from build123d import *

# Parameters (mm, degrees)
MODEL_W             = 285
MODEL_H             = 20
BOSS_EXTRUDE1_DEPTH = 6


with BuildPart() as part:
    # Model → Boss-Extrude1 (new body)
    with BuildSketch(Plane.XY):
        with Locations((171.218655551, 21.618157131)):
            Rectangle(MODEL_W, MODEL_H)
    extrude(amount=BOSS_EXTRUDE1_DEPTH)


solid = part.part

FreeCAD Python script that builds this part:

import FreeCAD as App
import Part
import Sketcher

V = App.Vector
Q = App.Units.Quantity

doc = App.newDocument("Part")
params = doc.addObject("Spreadsheet::Sheet", "Params")
for row, (alias, value) in enumerate([
    ("sketch1_width", "285 mm"),
    ("sketch1_height", "20 mm"),
    ("pad1_length", "6 mm"),
], start=1):
    params.set(f"A{row}", alias)
    params.set(f"B{row}", "=" + value)
    params.setAlias(f"B{row}", alias)

body = doc.addObject("PartDesign::Body", "Body")

sketch1 = body.newObject("Sketcher::SketchObject", "Sketch")
sketch1.AttachmentSupport = (doc.getObject("XY_Plane"), [""])
sketch1.MapMode = "FlatFace"
sketch1.addGeometry([
    Part.LineSegment(V(29, 32, 0), V(29, 12, 0)),
    Part.LineSegment(V(29, 12, 0), V(314, 12, 0)),
    Part.LineSegment(V(314, 12, 0), V(314, 32, 0)),
    Part.LineSegment(V(314, 32, 0), V(29, 32, 0)),
], False)
sketch1.addConstraint([
    Sketcher.Constraint("Coincident", 0, 2, 1, 1),
    Sketcher.Constraint("Coincident", 1, 2, 2, 1),
    Sketcher.Constraint("Coincident", 2, 2, 3, 1),
    Sketcher.Constraint("Coincident", 3, 2, 0, 1),
    Sketcher.Constraint("Vertical", 0),
    Sketcher.Constraint("Horizontal", 1),
    Sketcher.Constraint("Vertical", 2),
    Sketcher.Constraint("Horizontal", 3),
    Sketcher.Constraint("DistanceX", 1, 1, 1, 2, Q("285 mm")),
    Sketcher.Constraint("DistanceY", 0, 2, 0, 1, Q("20 mm")),
    Sketcher.Constraint("DistanceX", -1, 1, 0, 2, Q("28.718656 mm")),
    Sketcher.Constraint("DistanceY", -1, 1, 0, 2, Q("11.618157 mm")),
])
sketch1.setExpression("Constraints[8]", "Params.sketch1_width")
sketch1.setExpression("Constraints[9]", "Params.sketch1_height")
pad1 = body.newObject("PartDesign::Pad", "Pad")
pad1.Profile = sketch1
pad1.setExpression("Length", "Params.pad1_length")

doc.recompute()
